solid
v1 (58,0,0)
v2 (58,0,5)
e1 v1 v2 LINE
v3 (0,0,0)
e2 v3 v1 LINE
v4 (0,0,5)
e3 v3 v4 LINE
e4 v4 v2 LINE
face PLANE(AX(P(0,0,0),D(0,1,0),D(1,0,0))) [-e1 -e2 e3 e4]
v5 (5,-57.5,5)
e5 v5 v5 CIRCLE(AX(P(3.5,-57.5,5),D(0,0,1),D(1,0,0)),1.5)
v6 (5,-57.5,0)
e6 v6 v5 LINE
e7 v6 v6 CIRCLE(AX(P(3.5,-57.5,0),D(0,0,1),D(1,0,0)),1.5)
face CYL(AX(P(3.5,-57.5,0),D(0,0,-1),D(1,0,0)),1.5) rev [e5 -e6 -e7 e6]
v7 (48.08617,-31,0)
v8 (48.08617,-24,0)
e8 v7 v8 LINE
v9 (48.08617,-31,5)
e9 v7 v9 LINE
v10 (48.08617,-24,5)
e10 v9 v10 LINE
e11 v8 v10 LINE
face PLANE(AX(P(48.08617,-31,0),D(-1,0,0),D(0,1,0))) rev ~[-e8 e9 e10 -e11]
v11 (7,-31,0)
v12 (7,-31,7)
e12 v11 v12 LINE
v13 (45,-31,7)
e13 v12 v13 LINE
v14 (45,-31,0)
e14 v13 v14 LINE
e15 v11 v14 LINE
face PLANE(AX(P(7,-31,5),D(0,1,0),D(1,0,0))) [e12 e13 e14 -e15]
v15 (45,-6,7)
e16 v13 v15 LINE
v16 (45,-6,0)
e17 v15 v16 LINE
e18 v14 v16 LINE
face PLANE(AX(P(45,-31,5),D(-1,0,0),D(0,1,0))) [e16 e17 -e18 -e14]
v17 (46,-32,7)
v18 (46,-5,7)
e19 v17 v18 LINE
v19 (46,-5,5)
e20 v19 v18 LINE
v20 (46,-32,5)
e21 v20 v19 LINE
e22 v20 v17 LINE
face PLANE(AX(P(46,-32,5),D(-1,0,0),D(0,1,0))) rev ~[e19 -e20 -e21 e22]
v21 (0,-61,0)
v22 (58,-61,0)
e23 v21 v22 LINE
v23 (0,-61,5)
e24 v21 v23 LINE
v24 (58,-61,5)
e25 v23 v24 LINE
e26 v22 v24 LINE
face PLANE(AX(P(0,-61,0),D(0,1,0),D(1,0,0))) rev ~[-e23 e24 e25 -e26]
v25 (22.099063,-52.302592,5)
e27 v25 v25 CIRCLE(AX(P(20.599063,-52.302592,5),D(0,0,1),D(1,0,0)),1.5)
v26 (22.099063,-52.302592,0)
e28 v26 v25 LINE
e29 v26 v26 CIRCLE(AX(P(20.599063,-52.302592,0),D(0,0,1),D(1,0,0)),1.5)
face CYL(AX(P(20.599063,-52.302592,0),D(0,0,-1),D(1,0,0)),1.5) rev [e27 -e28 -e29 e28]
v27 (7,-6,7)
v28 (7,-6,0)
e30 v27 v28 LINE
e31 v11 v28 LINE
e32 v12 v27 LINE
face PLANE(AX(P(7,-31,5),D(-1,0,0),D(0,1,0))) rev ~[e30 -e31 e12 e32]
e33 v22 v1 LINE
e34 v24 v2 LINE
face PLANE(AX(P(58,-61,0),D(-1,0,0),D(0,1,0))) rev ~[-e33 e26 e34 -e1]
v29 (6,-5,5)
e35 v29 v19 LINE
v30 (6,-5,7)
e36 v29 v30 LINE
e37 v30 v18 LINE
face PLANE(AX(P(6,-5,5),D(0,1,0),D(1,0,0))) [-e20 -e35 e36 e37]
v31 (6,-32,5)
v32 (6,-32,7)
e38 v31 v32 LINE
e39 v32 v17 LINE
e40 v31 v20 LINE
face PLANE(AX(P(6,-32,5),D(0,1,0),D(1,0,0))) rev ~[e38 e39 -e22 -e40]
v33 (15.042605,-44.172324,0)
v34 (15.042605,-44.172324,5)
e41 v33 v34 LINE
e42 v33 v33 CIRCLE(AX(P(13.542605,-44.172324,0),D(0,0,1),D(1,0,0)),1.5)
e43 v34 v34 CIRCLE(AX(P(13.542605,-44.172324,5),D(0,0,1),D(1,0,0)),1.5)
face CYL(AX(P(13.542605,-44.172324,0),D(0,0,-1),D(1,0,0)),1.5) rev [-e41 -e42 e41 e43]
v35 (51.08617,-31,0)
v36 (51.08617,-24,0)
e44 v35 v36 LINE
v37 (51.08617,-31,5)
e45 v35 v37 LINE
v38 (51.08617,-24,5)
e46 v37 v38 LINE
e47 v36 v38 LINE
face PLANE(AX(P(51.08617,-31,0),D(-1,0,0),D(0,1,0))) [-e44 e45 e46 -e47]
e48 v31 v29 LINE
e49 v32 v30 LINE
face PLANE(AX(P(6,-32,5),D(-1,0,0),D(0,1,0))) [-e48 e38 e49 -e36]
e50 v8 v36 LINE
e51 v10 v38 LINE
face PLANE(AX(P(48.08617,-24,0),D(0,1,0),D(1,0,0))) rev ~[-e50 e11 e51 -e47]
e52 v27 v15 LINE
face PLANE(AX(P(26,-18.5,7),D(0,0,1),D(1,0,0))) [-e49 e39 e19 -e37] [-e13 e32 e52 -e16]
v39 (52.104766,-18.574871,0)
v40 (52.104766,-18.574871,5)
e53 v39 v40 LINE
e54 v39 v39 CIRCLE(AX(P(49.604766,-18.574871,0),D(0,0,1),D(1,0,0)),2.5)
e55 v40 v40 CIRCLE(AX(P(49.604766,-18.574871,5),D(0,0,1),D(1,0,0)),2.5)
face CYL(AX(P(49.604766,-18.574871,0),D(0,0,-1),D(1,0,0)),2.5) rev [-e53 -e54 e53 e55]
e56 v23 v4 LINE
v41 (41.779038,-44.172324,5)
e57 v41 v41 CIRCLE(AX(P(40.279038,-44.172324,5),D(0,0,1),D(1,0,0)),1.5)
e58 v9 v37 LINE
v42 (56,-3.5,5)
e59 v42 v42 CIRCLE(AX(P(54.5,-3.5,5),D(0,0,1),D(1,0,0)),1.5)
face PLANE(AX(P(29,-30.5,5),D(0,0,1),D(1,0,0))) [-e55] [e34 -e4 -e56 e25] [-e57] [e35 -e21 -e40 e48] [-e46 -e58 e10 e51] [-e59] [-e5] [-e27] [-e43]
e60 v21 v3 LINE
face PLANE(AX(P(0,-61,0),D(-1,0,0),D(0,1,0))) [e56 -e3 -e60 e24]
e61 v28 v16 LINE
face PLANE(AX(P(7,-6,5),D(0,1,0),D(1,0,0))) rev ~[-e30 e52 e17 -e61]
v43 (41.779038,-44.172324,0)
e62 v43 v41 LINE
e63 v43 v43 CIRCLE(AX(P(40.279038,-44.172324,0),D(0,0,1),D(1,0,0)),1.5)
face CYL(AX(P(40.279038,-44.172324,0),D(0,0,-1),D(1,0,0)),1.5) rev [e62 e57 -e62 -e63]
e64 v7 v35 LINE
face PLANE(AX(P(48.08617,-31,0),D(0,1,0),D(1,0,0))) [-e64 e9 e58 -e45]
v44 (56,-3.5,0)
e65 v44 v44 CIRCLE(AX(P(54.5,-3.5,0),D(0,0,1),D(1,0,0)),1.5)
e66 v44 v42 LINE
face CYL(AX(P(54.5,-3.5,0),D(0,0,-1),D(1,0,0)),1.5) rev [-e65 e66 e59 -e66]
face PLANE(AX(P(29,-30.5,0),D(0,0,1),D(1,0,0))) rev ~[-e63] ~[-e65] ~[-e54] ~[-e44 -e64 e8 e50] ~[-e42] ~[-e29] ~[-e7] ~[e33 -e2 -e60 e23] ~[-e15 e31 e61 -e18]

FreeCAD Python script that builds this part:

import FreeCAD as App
import Part
import Sketcher
from FreeCAD import Vector


def add_polygon(sketch, points):
    """Adds a closed chain of lines whose ends are joined by coincident constraints."""
    first, n = sketch.GeometryCount, len(points)
    for a, b in zip(points, points[1:] + points[:1]):
        sketch.addGeometry(Part.LineSegment(App.Vector(*a, 0), App.Vector(*b, 0)), False)
    for i in range(n):
        sketch.addConstraint(Sketcher.Constraint("Coincident", first + i, 2, first + (i + 1) % n, 1))

doc = App.newDocument("Part")
params = doc.addObject("Spreadsheet::Sheet", "Params")
for row, (alias, value) in enumerate([
    ("sketch1_diameter", "3 mm"),
    ("sketch1_diameter2", "5 mm"),
    ("sketch1_width", "58 mm"),
    ("sketch1_width2", "38 mm"),
    ("sketch1_width3", "3 mm"),
    ("pad1_length", "5 mm"),
    ("sketch2_width", "40 mm"),
    ("sketch2_width2", "38 mm"),
    ("sketch2_height", "27 mm"),
    ("sketch2_height2", "25 mm"),
    ("pad2_length", "2 mm"),
], start=1):
    params.set(f"A{row}", alias)
    params.set(f"B{row}", "=" + value)
    params.setAlias(f"B{row}", alias)

body = doc.addObject("PartDesign::Body", "Body")

# Sketch on XY plane
sketch1 = doc.addObject("Sketcher::SketchObject", "Sketch")
body.addObject(sketch1)
sketch1.AttachmentSupport = (doc.XY_Plane, [""])
sketch1.MapMode = "FlatFace"
add_polygon(sketch1, [(0, 0), (0, -61), (58, -61), (58, 0)])  # lines 0-3
sketch1.addGeometry(Part.Circle(Vector(3.5, -57.5, 0), Vector(0, 0, 1), 1.5), False)  # 4
sketch1.addGeometry(Part.Circle(Vector(20.6, -52.3, 0), Vector(0, 0, 1), 1.5), False)  # 5
sketch1.addGeometry(Part.Circle(Vector(13.5, -44.2, 0), Vector(0, 0, 1), 1.5), False)  # 6
sketch1.addGeometry(Part.Circle(Vector(40.3, -44.2, 0), Vector(0, 0, 1), 1.5), False)  # 7
add_polygon(sketch1, [(45, -31), (7, -31), (7, -6), (45, -6)])  # lines 8-11
add_polygon(sketch1, [(51.1, -31), (48.1, -31), (48.1, -24), (51.1, -24)])  # lines 12-15
sketch1.addGeometry(Part.Circle(Vector(49.6, -18.6, 0), Vector(0, 0, 1), 2.5), False)  # 16
sketch1.addGeometry(Part.Circle(Vector(54.5, -3.5, 0), Vector(0, 0, 1), 1.5), False)  # 17
sketch1.addConstraint(Sketcher.Constraint("Vertical", 0))
sketch1.addConstraint(Sketcher.Constraint("Horizontal", 1))
sketch1.addConstraint(Sketcher.Constraint("Vertical", 2))
sketch1.addConstraint(Sketcher.Constraint("Horizontal", 3))
sketch1.addConstraint(Sketcher.Constraint("Horizontal", 8))
sketch1.addConstraint(Sketcher.Constraint("Vertical", 9))
sketch1.addConstraint(Sketcher.Constraint("Horizontal", 10))
sketch1.addConstraint(Sketcher.Constraint("Vertical", 11))
sketch1.addConstraint(Sketcher.Constraint("Horizontal", 12))
sketch1.addConstraint(Sketcher.Constraint("Vertical", 13))
sketch1.addConstraint(Sketcher.Constraint("Horizontal", 14))
sketch1.addConstraint(Sketcher.Constraint("Vertical", 15))
sketch1.addConstraint(Sketcher.Constraint("Coincident", 3, 2, -1, 1))
sketch1.addConstraint(Sketcher.Constraint("Equal", 4, 5))
sketch1.addConstraint(Sketcher.Constraint("Equal", 5, 6))
sketch1.addConstraint(Sketcher.Constraint("Equal", 6, 7))
sketch1.addConstraint(Sketcher.Constraint("Equal", 7, 17))
sketch1.addConstraint(Sketcher.Constraint("Horizontal", 6, 3, 7, 3))
sketch1.addConstraint(Sketcher.Constraint("Horizontal", 11, 2, 12, 2))
sketch1.addConstraint(Sketcher.Constraint("Diameter", 4, 3.0))
sketch1.addConstraint(Sketcher.Constraint("Diameter", 16, 5.0))
sketch1.addConstraint(Sketcher.Constraint("DistanceX", 1, 1, 1, 2, 58.0))
sketch1.addConstraint(Sketcher.Constraint("DistanceX", 8, 2, 8, 1, 38.0))
sketch1.addConstraint(Sketcher.Constraint("DistanceX", 12, 2, 12, 1, 3.0))
sketch1.addConstraint(Sketcher.Constraint("DistanceY", 0, 2, 0, 1, 61.0))
sketch1.addConstraint(Sketcher.Constraint("DistanceY", 9, 1, 9, 2, 25.0))
sketch1.addConstraint(Sketcher.Constraint("DistanceY", 13, 1, 13, 2, 7.0))
sketch1.addConstraint(Sketcher.Constraint("DistanceX", -1, 1, 8, 2, 7.0))
sketch1.addConstraint(Sketcher.Constraint("DistanceY", 8, 2, -1, 1, 31.0))
sketch1.addConstraint(Sketcher.Constraint("DistanceX", 4, 3, 17, 3, 51.0))
sketch1.addConstraint(Sketcher.Constraint("DistanceY", 4, 3, 17, 3, 54.0))
sketch1.addConstraint(Sketcher.Constraint("DistanceX", -1, 1, 4, 3, 3.5))
sketch1.addConstraint(Sketcher.Constraint("DistanceY", 4, 3, -1, 1, 57.5))
sketch1.addConstraint(Sketcher.Constraint("DistanceY", 5, 3, -1, 1, 52.302592))
sketch1.addConstraint(Sketcher.Constraint("DistanceY", 16, 3, -1, 1, 18.574871))
sketch1.addConstraint(Sketcher.Constraint("DistanceX", -1, 1, 12, 2, 48.08617))
sketch1.addConstraint(Sketcher.Constraint("DistanceX", 6, 3, 5, 3, 7.056458))
sketch1.addConstraint(Sketcher.Constraint("DistanceX", 6, 3, 16, 3, 36.062161))
sketch1.addConstraint(Sketcher.Constraint("DistanceX", 7, 3, 1, 2, 17.720962))
sketch1.addConstraint(Sketcher.Constraint("DistanceX", -1, 1, 5, 3, 20.599063))
sketch1.addConstraint(Sketcher.Constraint("DistanceY", 6, 3, -1, 1, 44.172324))
sketch1.setExpression("Constraints[31]", "Params.sketch1_diameter")
sketch1.setExpression("Constraints[32]", "Params.sketch1_diameter2")
sketch1.setExpression("Constraints[33]", "Params.sketch1_width")
sketch1.setExpression("Constraints[34]", "Params.sketch1_width2")
sketch1.setExpression("Constraints[35]", "Params.sketch1_width3")
pad1 = doc.addObject("PartDesign::Pad", "Pad")
body.addObject(pad1)
pad1.Profile = sketch1
pad1.setExpression("Length", "Params.pad1_length")

# Sketch on XY plane
sketch2 = doc.addObject("Sketcher::SketchObject", "Sketch001")
body.addObject(sketch2)
sketch2.AttachmentSupport = (doc.XY_Plane, [""])
sketch2.MapMode = "FlatFace"
sketch2.AttachmentOffset = App.Placement(Vector(0, 0, 5), App.Rotation())
add_polygon(sketch2, [(6, -5), (6, -32), (46, -32), (46, -5)])  # lines 0-3
add_polygon(sketch2, [(45, -31), (7, -31), (7, -6), (45, -6)])  # lines 4-7
sketch2.addConstraint(Sketcher.Constraint("Vertical", 0))
sketch2.addConstraint(Sketcher.Constraint("Horizontal", 1))
sketch2.addConstraint(Sketcher.Constraint("Vertical", 2))
sketch2.addConstraint(Sketcher.Constraint("Horizontal", 3))
sketch2.addConstraint(Sketcher.Constraint("Horizontal", 4))
sketch2.addConstraint(Sketcher.Constraint("Vertical", 5))
sketch2.addConstraint(Sketcher.Constraint("Horizontal", 6))
sketch2.addConstraint(Sketcher.Constraint("Vertical", 7))
sketch2.addConstraint(Sketcher.Constraint("DistanceX", 1, 1, 1, 2, 40.0))
sketch2.addConstraint(Sketcher.Constraint("DistanceX", 4, 2, 4, 1, 38.0))
sketch2.addConstraint(Sketcher.Constraint("DistanceY", 0, 2, 0, 1, 27.0))
sketch2.addConstraint(Sketcher.Constraint("DistanceY", 5, 1, 5, 2, 25.0))
sketch2.addConstraint(Sketcher.Constraint("DistanceX", -1, 1, 0, 2, 6.0))
sketch2.addConstraint(Sketcher.Constraint("DistanceY", 0, 2, -1, 1, 32.0))
sketch2.addConstraint(Sketcher.Constraint("DistanceX", -1, 1, 4, 2, 7.0))
sketch2.addConstraint(Sketcher.Constraint("DistanceY", 4, 2, -1, 1, 31.0))
sketch2.setExpression("Constraints[16]", "Params.sketch2_width")
sketch2.setExpression("Constraints[17]", "Params.sketch2_width2")
sketch2.setExpression("Constraints[18]", "Params.sketch2_height")
sketch2.setExpression("Constraints[19]", "Params.sketch2_height2")
pad2 = doc.addObject("PartDesign::Pad", "Pad001")
body.addObject(pad2)
pad2.Profile = sketch2
pad2.setExpression("Length", "Params.pad2_length")

doc.recompute()
